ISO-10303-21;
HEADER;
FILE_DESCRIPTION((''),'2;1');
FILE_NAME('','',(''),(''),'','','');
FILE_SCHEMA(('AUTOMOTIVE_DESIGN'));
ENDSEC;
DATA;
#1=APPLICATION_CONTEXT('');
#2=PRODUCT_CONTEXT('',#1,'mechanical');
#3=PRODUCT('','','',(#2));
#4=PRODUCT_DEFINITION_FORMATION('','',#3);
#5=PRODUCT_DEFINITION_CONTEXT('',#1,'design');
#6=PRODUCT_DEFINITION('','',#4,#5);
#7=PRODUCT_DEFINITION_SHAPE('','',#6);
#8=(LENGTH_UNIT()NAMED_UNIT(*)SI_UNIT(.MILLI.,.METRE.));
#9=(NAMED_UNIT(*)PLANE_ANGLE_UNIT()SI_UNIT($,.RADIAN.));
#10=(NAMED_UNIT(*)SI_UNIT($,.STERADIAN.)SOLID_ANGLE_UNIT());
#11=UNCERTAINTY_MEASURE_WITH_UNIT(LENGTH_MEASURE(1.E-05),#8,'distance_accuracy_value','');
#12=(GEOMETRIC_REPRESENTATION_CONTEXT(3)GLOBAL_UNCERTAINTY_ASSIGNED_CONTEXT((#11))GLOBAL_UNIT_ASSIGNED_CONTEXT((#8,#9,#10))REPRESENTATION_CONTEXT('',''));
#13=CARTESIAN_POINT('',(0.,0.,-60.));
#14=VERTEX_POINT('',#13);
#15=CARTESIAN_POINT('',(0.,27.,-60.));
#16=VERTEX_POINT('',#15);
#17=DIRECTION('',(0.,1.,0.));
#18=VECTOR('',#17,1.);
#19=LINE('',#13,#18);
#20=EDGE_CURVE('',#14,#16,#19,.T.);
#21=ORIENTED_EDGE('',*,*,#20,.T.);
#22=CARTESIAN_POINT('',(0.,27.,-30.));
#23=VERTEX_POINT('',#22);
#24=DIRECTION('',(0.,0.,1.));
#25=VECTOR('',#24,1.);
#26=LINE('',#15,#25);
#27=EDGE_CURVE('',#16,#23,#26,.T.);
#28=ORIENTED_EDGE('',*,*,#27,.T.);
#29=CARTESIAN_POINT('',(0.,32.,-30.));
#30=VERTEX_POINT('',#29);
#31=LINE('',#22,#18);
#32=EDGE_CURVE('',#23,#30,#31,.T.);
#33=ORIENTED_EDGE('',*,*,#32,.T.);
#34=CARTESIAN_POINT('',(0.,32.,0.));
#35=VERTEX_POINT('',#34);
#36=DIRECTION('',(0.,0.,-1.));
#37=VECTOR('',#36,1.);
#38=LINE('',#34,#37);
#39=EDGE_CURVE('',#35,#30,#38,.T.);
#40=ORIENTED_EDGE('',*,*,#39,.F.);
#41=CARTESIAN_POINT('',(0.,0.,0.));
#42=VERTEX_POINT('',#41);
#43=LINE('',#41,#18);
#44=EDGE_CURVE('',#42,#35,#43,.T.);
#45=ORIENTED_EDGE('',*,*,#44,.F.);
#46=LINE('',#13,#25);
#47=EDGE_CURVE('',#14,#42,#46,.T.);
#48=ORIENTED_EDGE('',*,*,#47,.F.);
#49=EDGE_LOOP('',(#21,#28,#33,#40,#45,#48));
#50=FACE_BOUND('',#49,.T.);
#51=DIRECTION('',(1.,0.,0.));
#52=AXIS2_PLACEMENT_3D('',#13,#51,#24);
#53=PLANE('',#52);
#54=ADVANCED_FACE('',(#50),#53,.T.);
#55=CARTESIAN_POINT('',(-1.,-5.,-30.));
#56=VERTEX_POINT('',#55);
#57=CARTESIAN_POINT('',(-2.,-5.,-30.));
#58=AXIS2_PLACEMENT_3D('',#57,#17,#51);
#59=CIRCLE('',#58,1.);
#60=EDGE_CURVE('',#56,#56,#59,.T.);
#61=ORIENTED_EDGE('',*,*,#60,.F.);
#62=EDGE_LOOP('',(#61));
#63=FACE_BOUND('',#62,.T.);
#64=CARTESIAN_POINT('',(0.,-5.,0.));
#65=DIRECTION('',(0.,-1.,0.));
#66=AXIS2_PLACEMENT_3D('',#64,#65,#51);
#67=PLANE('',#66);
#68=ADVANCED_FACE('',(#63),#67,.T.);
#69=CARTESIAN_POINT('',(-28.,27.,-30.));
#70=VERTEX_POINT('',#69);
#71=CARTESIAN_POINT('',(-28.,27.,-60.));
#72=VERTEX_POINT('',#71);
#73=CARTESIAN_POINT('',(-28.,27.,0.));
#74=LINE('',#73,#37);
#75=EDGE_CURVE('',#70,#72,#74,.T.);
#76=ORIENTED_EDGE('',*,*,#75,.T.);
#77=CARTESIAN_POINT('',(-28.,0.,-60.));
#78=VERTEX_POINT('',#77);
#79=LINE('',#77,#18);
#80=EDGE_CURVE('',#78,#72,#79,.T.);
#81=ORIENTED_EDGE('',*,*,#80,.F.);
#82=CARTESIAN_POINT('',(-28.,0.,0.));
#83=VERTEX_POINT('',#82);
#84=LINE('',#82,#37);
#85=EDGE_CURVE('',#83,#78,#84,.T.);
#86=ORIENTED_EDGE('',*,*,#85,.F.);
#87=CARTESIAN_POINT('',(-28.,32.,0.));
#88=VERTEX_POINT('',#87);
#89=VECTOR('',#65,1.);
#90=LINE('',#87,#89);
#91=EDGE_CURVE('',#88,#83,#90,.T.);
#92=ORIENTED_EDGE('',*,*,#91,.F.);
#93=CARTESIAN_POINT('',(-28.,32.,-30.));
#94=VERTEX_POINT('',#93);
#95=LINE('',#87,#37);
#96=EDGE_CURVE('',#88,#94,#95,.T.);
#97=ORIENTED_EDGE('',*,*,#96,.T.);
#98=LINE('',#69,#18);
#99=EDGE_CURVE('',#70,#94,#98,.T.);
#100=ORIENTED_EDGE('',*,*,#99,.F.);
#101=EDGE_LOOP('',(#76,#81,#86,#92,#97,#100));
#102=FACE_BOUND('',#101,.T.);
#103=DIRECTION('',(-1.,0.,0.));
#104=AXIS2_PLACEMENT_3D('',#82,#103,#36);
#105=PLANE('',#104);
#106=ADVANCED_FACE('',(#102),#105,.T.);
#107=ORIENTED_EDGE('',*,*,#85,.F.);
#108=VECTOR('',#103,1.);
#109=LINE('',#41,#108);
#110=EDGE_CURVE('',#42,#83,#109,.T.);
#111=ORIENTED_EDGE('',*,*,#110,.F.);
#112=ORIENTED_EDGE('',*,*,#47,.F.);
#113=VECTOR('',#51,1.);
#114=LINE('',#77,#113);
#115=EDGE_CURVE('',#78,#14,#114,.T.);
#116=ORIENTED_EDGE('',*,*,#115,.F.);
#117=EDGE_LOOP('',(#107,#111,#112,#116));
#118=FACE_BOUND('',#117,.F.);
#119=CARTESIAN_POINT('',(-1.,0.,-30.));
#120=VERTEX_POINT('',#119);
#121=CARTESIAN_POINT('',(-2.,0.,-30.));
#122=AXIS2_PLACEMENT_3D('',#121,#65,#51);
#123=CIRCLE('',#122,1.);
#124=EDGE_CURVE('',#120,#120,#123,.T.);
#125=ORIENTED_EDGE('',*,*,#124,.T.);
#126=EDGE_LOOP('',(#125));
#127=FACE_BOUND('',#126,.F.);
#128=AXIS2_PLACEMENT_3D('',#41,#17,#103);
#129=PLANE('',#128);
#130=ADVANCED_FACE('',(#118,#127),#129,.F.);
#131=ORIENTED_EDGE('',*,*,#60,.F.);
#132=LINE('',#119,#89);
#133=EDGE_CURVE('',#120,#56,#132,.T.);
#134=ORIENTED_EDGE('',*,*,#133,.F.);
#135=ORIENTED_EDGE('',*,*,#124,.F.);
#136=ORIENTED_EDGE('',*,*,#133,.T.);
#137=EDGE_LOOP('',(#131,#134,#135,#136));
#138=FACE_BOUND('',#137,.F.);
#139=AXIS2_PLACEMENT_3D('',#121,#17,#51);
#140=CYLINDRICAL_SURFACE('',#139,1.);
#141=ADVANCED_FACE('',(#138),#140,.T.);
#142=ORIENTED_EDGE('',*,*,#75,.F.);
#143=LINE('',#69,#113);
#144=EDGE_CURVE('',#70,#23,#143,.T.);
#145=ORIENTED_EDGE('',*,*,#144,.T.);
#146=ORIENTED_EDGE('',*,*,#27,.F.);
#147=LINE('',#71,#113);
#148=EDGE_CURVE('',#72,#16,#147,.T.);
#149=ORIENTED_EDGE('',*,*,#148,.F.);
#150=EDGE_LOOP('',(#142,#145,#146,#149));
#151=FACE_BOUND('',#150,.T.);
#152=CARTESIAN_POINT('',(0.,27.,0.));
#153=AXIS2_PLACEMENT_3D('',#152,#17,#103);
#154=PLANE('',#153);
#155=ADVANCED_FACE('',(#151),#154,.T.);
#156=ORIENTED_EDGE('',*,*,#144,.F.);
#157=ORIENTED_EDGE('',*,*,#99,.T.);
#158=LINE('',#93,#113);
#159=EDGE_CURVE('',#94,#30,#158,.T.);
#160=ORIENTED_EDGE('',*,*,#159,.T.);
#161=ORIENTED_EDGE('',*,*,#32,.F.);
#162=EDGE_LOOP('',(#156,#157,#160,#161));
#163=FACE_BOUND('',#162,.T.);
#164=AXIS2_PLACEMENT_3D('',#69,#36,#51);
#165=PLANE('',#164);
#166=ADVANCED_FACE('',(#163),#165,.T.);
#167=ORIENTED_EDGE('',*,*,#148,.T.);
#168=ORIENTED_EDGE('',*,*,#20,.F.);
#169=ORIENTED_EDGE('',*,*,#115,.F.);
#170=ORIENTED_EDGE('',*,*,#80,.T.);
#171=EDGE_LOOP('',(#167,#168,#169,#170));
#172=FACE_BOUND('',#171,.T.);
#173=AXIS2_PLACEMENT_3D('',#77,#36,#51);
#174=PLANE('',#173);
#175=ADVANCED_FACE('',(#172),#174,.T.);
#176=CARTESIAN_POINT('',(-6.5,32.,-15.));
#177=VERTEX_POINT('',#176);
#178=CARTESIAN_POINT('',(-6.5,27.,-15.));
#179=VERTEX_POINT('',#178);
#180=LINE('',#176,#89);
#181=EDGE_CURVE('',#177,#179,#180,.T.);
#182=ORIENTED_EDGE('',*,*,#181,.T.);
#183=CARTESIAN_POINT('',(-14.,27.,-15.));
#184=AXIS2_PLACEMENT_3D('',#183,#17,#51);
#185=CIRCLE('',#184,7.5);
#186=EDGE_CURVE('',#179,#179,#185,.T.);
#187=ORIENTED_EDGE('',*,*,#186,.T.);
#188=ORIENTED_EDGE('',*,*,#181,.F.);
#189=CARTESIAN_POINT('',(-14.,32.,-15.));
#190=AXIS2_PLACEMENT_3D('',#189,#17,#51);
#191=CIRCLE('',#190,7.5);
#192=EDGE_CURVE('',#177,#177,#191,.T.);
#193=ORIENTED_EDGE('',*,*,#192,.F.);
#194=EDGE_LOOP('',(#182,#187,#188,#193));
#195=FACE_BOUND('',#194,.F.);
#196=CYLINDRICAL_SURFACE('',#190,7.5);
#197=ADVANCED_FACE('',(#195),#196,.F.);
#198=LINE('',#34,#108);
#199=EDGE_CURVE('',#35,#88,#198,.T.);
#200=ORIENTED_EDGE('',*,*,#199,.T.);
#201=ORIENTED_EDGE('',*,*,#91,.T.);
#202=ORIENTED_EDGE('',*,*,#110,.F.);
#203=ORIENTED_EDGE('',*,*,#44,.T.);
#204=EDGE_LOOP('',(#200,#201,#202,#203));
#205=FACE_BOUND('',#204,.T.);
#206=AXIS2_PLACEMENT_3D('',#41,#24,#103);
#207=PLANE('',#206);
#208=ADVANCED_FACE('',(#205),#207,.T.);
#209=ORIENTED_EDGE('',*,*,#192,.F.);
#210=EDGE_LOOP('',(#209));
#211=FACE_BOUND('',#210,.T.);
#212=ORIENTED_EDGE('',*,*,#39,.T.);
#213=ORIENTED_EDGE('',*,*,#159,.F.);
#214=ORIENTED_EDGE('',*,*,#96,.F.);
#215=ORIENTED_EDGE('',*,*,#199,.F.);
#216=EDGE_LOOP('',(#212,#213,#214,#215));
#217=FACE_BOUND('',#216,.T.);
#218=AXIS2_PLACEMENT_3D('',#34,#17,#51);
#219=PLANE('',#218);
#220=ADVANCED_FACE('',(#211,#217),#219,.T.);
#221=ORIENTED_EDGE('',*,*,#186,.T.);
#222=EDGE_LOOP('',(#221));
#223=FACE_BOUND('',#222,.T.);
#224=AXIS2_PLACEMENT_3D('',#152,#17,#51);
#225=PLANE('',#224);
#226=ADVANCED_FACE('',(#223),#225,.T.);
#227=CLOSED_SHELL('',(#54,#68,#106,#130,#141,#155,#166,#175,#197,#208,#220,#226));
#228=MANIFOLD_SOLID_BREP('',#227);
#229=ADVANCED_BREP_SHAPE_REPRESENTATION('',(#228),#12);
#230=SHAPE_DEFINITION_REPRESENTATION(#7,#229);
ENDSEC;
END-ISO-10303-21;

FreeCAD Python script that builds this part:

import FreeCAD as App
import Part
import Sketcher


def add_polygon(sketch, points):
    """Adds a closed chain of lines whose ends are joined by coincident constraints."""
    first, n = sketch.GeometryCount, len(points)
    for a, b in zip(points, points[1:] + points[:1]):
        sketch.addGeometry(Part.LineSegment(App.Vector(*a, 0), App.Vector(*b, 0)), False)
    for i in range(n):
        sketch.addConstraint(Sketcher.Constraint("Coincident", first + i, 2, first + (i + 1) % n, 1))

doc = App.newDocument("Part")
params = doc.addObject("Spreadsheet::Sheet", "Params")
for row, (alias, value) in enumerate([
    ("sketch1_width", "28 mm"),
    ("sketch1_height", "60 mm"),
    ("pad1_length", "27 mm"),
    ("sketch2_height", "30 mm"),
    ("sketch2_width", "28 mm"),
    ("pad2_length", "5 mm"),
    ("sketch3_diameter", "15 mm"),
    ("pocket1_length", "5 mm"),
    ("sketch4_diameter", "2 mm"),
    ("pad3_length", "5 mm"),
], start=1):
    params.set(f"A{row}", alias)
    params.set(f"B{row}", "=" + value)
    params.setAlias(f"B{row}", alias)

body = doc.addObject("PartDesign::Body", "Body")

sketch1 = body.newObject("Sketcher::SketchObject", "Sketch")
sketch1.AttachmentSupport = (doc.getObject("XZ_Plane"), [""])
sketch1.MapMode = "FlatFace"
add_polygon(sketch1, [(-28, 0), (0, 0), (0, -60), (-28, -60)])
sketch1.addConstraint([
    Sketcher.Constraint("Horizontal", 0),
    Sketcher.Constraint("Vertical", 1),
    Sketcher.Constraint("Horizontal", 2),
    Sketcher.Constraint("Vertical", 3),
    Sketcher.Constraint("Coincident", 0, 2, -1, 1),
    Sketcher.Constraint("DistanceX", 0, 1, 0, 2, 28.0),
    Sketcher.Constraint("DistanceY", 1, 2, 1, 1, 60.0),
])
sketch1.setExpression("Constraints[9]", "Params.sketch1_width")
sketch1.setExpression("Constraints[10]", "Params.sketch1_height")
pad1 = body.newObject("PartDesign::Pad", "Pad")
pad1.Profile = sketch1
pad1.setExpression("Length", "Params.pad1_length")
pad1.Reversed = True

sketch2 = body.newObject("Sketcher::SketchObject", "Sketch001")
sketch2.AttachmentSupport = (doc.getObject("XZ_Plane"), [""])
sketch2.MapMode = "FlatFace"
sketch2.AttachmentOffset = App.Placement(App.Vector(0, 0, -27), App.Rotation())
add_polygon(sketch2, [(-28, 0), (0, 0), (0, -30), (-28, -30)])
sketch2.addConstraint([
    Sketcher.Constraint("Horizontal", 0),
    Sketcher.Constraint("Vertical", 1),
    Sketcher.Constraint("Horizontal", 2),
    Sketcher.Constraint("Vertical", 3),
    Sketcher.Constraint("Coincident", 0, 2, -1, 1),
    Sketcher.Constraint("DistanceY", 1, 2, 1, 1, 30.0),
    Sketcher.Constraint("DistanceX", 0, 1, 0, 2, 28.0),
])
sketch2.setExpression("Constraints[9]", "Params.sketch2_height")
sketch2.setExpression("Constraints[10]", "Params.sketch2_width")
pad2 = body.newObject("PartDesign::Pad", "Pad001")
pad2.Profile = sketch2
pad2.setExpression("Length", "Params.pad2_length")
pad2.Reversed = True

sketch3 = body.newObject("Sketcher::SketchObject", "Sketch002")
sketch3.AttachmentSupport = (doc.getObject("XZ_Plane"), [""])
sketch3.MapMode = "FlatFace"
sketch3.AttachmentOffset = App.Placement(App.Vector(0, 0, -32), App.Rotation())
sketch3.addGeometry(Part.Circle(App.Vector(-14, -15, 0), App.Vector(0, 0, 1), 7.5), False)
sketch3.addConstraint([
    Sketcher.Constraint("Diameter", 0, 15.0),
    Sketcher.Constraint("DistanceY", 0, 3, -1, 1, 15.0),
    Sketcher.Constraint("DistanceX", 0, 3, -1, 1, 14.0),
])
sketch3.setExpression("Constraints[0]", "Params.sketch3_diameter")
pocket1 = body.newObject("PartDesign::Pocket", "Pocket")
pocket1.Profile = sketch3
pocket1.setExpression("Length", "Params.pocket1_length")
pocket1.Reversed = True

sketch4 = body.newObject("Sketcher::SketchObject", "Sketch003")
sketch4.AttachmentSupport = (doc.getObject("XZ_Plane"), [""])
sketch4.MapMode = "FlatFace"
sketch4.addGeometry(Part.Circle(App.Vector(-2, -30, 0), App.Vector(0, 0, 1), 1), False)
sketch4.addConstraint([
    Sketcher.Constraint("Diameter", 0, 2.0),
    Sketcher.Constraint("DistanceX", 0, 3, -1, 1, 2.0),
    Sketcher.Constraint("DistanceY", 0, 3, -1, 1, 30.0),
])
sketch4.setExpression("Constraints[0]", "Params.sketch4_diameter")
pad3 = body.newObject("PartDesign::Pad", "Pad002")
pad3.Profile = sketch4
pad3.setExpression("Length", "Params.pad3_length")

doc.recompute()
